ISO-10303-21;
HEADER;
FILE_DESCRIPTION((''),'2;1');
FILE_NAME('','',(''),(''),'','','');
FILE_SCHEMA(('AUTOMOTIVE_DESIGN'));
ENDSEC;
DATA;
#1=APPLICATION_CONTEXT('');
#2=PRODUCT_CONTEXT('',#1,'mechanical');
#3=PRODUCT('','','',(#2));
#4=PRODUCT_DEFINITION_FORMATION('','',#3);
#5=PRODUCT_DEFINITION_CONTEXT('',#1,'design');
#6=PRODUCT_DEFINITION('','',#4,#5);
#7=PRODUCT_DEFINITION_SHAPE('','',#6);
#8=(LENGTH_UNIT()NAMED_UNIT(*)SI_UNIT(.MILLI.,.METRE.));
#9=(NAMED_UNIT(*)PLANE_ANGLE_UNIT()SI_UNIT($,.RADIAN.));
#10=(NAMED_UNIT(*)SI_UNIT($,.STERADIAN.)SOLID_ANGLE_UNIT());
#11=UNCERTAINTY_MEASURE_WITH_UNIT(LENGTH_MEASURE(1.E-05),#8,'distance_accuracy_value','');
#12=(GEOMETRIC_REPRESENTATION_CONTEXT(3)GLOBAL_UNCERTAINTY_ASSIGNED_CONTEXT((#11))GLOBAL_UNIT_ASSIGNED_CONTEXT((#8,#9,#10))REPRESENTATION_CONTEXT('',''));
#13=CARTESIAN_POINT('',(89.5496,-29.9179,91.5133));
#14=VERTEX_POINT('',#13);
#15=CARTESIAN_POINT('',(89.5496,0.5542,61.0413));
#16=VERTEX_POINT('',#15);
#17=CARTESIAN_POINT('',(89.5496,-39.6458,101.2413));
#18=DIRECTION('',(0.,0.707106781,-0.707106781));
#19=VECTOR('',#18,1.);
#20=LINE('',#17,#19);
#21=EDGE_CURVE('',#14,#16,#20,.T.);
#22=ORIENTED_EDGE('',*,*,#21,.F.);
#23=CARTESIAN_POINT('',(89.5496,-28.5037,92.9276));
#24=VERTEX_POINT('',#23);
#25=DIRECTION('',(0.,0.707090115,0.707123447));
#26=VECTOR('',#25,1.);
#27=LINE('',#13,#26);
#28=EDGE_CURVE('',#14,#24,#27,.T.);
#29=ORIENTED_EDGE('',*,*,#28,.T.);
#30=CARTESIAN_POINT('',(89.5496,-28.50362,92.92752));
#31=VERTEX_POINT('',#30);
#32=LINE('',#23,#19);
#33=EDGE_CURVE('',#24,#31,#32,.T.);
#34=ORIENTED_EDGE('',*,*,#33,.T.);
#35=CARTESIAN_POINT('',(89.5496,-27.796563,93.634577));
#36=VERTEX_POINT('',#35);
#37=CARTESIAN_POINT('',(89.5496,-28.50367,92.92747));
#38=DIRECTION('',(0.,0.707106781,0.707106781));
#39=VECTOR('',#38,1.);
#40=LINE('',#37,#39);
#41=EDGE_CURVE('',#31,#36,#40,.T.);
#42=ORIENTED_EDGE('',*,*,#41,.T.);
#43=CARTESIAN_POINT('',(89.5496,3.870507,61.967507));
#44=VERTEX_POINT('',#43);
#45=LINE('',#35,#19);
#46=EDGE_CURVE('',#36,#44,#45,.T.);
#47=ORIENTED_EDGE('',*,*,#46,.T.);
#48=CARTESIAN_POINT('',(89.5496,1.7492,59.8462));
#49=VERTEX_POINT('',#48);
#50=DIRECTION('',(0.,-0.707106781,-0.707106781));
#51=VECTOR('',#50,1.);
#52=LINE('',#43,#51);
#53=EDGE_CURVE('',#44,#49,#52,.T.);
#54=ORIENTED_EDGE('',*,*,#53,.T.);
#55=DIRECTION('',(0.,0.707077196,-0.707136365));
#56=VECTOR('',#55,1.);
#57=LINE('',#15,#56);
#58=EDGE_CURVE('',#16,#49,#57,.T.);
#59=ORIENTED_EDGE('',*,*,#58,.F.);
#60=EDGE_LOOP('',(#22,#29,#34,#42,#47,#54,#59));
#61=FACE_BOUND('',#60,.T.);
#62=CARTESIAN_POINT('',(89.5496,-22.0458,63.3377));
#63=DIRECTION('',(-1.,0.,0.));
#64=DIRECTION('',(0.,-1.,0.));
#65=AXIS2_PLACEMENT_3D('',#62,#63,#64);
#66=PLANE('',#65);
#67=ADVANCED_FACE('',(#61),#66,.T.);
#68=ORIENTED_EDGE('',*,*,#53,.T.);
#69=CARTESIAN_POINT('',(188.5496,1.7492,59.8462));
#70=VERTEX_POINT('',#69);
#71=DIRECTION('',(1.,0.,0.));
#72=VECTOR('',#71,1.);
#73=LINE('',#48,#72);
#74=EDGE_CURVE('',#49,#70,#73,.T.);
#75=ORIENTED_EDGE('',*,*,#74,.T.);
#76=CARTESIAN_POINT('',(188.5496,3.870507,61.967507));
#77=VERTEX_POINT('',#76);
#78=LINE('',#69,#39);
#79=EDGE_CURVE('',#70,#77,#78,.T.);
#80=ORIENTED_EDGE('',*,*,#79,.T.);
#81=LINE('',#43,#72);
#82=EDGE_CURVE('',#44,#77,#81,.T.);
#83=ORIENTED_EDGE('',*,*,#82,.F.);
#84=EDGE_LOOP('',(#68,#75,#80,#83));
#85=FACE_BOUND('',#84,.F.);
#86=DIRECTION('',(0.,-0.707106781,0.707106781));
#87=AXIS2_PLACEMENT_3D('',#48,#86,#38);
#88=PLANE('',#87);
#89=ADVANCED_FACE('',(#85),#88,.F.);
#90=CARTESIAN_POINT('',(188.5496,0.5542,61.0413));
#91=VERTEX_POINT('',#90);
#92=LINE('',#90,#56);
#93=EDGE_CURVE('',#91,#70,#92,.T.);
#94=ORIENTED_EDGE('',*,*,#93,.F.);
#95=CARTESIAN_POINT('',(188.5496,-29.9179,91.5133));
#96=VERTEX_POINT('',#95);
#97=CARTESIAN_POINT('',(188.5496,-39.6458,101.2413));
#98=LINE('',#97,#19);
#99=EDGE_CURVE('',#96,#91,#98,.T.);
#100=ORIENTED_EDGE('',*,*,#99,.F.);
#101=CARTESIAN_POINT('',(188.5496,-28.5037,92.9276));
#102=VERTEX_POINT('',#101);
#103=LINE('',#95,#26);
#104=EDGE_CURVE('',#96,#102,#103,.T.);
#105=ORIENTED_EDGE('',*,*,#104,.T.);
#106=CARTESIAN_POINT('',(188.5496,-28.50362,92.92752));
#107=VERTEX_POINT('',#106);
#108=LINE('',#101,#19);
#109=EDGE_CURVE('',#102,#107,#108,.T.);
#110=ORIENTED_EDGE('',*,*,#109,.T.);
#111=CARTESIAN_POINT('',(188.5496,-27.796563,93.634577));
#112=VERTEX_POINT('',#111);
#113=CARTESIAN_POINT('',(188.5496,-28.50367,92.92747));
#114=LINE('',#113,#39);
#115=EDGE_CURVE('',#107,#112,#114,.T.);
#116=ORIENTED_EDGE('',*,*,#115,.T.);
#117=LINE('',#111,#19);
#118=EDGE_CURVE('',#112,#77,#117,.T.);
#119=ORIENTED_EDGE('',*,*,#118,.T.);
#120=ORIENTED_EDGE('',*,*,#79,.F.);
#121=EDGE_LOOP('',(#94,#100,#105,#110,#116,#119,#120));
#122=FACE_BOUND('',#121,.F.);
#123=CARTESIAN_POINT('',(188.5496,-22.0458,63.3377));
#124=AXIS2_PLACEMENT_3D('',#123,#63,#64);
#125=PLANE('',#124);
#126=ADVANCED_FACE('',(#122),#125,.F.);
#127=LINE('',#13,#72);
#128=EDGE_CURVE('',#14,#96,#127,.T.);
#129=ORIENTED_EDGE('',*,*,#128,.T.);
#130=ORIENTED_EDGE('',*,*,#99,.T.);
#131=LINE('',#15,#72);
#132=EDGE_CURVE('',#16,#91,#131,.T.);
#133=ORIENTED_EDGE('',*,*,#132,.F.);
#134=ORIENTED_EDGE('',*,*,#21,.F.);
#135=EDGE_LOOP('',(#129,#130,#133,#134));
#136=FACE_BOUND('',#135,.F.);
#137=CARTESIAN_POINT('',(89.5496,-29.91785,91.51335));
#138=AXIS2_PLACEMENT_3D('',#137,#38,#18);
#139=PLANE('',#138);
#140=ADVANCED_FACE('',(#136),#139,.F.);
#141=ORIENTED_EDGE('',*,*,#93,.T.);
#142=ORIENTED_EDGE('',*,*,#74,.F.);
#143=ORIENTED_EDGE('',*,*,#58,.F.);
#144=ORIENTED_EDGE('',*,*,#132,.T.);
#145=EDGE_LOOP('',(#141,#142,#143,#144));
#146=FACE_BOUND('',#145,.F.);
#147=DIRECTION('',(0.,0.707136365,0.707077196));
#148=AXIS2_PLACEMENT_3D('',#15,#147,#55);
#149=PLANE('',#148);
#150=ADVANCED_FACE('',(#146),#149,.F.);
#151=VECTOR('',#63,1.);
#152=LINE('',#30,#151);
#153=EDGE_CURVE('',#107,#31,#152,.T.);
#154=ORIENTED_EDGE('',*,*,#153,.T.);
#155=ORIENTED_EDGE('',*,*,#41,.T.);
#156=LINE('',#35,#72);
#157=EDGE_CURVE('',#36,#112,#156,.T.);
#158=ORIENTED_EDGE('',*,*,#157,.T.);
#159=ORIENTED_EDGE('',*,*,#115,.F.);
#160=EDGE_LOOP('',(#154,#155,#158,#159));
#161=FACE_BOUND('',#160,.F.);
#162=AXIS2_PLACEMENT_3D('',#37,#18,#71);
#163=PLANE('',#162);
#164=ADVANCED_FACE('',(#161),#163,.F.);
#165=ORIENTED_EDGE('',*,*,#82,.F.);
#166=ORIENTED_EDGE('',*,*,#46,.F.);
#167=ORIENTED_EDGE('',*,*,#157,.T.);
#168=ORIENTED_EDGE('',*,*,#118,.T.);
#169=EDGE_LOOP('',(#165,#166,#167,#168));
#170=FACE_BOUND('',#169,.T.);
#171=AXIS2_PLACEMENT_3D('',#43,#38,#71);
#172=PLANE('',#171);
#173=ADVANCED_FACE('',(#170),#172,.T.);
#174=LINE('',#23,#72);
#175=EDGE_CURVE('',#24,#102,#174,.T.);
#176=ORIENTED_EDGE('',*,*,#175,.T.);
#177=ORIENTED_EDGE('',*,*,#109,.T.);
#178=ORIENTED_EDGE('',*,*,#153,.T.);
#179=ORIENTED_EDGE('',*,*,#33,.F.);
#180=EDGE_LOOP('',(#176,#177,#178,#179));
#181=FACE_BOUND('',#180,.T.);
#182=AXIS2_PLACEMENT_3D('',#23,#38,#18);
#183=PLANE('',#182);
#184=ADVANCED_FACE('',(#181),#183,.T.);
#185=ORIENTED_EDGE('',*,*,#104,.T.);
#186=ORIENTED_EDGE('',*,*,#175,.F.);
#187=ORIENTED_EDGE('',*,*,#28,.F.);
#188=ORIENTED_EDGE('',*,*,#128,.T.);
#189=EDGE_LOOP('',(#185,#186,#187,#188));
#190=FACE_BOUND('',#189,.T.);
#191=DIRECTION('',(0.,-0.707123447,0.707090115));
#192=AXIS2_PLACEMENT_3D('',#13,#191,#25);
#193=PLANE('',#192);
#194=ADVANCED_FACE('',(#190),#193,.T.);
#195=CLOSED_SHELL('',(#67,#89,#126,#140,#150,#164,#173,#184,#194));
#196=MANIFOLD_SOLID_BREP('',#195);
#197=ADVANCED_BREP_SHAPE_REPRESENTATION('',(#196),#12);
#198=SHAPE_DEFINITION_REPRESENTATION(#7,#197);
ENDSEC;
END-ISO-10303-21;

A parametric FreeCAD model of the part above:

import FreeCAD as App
import Part
import Sketcher
Q = App.Units.Quantity


def add_polygon(sketch, points):
    """Adds a closed chain of lines whose ends are joined by coincident constraints."""
    first, n = sketch.GeometryCount, len(points)
    for a, b in zip(points, points[1:] + points[:1]):
        sketch.addGeometry(Part.LineSegment(App.Vector(*a, 0), App.Vector(*b, 0)), False)
    for i in range(n):
        sketch.addConstraint(Sketcher.Constraint("Coincident", first + i, 2, first + (i + 1) % n, 1))

doc = App.newDocument("Part")
body = doc.addObject("PartDesign::Body", "Body")

sketch1 = doc.addObject("Sketcher::SketchObject", "Sketch")
body.addObject(sketch1)
sketch1.AttachmentSupport = (doc.YZ_Plane, [""])
sketch1.MapMode = "FlatFace"
sketch1.AttachmentOffset = App.Placement(App.Vector(0, 0, 89.5496), App.Rotation())
add_polygon(sketch1, [(0.6, 61), (-29.9, 91.5), (-28.5, 92.9), (3.2, 61.3), (1.7, 59.8)])
sketch1.addConstraint(Sketcher.Constraint("Perpendicular", 0, 1))
sketch1.addConstraint(Sketcher.Constraint("Perpendicular", 1, 2))
sketch1.addConstraint(Sketcher.Constraint("Perpendicular", 2, 3))
sketch1.addConstraint(Sketcher.Constraint("Perpendicular", 3, 4))
sketch1.addConstraint(Sketcher.Constraint("Distance", 1, Q("2 mm")))
sketch1.addConstraint(Sketcher.Constraint("Angle", 0, Q("135 deg")))
sketch1.addConstraint(Sketcher.Constraint("Distance", 4, Q("1.69 mm")))
sketch1.addConstraint(Sketcher.Constraint("Distance", 0, Q("43.094 mm")))
sketch1.addConstraint(Sketcher.Constraint("DistanceX", 0, 2, -1, 1, Q("29.9178 mm")))
sketch1.addConstraint(Sketcher.Constraint("DistanceY", -1, 1, 0, 2, Q("91.5134 mm")))
pad1 = doc.addObject("PartDesign::Pad", "Pad")
body.addObject(pad1)
pad1.Profile = sketch1
pad1.Length = 99

sketch2 = doc.addObject("Sketcher::SketchObject", "Sketch001")
body.addObject(sketch2)
sketch2.Placement = App.Placement(App.Vector(89.5496, 3.1634, 61.2604), App.Rotation(App.Vector(1, 0, 0), App.Vector(0, 0.707106781, -0.707106781), App.Vector(0, 0.707106781, 0.707106781), "ZXY"))
add_polygon(sketch2, [(0, -45), (99, -45), (99, 0), (0, 0)])
sketch2.addConstraint(Sketcher.Constraint("Horizontal", 0))
sketch2.addConstraint(Sketcher.Constraint("Vertical", 1))
sketch2.addConstraint(Sketcher.Constraint("Horizontal", 2))
sketch2.addConstraint(Sketcher.Constraint("Vertical", 3))
sketch2.addConstraint(Sketcher.Constraint("Coincident", 2, 2, -1, 1))
sketch2.addConstraint(Sketcher.Constraint("DistanceX", 0, 1, 0, 2, Q("99 mm")))
sketch2.addConstraint(Sketcher.Constraint("DistanceY", 1, 1, 1, 2, Q("44.784 mm")))
pad2 = doc.addObject("PartDesign::Pad", "Pad001")
body.addObject(pad2)
pad2.Profile = sketch2
pad2.Length = 1

doc.recompute()
